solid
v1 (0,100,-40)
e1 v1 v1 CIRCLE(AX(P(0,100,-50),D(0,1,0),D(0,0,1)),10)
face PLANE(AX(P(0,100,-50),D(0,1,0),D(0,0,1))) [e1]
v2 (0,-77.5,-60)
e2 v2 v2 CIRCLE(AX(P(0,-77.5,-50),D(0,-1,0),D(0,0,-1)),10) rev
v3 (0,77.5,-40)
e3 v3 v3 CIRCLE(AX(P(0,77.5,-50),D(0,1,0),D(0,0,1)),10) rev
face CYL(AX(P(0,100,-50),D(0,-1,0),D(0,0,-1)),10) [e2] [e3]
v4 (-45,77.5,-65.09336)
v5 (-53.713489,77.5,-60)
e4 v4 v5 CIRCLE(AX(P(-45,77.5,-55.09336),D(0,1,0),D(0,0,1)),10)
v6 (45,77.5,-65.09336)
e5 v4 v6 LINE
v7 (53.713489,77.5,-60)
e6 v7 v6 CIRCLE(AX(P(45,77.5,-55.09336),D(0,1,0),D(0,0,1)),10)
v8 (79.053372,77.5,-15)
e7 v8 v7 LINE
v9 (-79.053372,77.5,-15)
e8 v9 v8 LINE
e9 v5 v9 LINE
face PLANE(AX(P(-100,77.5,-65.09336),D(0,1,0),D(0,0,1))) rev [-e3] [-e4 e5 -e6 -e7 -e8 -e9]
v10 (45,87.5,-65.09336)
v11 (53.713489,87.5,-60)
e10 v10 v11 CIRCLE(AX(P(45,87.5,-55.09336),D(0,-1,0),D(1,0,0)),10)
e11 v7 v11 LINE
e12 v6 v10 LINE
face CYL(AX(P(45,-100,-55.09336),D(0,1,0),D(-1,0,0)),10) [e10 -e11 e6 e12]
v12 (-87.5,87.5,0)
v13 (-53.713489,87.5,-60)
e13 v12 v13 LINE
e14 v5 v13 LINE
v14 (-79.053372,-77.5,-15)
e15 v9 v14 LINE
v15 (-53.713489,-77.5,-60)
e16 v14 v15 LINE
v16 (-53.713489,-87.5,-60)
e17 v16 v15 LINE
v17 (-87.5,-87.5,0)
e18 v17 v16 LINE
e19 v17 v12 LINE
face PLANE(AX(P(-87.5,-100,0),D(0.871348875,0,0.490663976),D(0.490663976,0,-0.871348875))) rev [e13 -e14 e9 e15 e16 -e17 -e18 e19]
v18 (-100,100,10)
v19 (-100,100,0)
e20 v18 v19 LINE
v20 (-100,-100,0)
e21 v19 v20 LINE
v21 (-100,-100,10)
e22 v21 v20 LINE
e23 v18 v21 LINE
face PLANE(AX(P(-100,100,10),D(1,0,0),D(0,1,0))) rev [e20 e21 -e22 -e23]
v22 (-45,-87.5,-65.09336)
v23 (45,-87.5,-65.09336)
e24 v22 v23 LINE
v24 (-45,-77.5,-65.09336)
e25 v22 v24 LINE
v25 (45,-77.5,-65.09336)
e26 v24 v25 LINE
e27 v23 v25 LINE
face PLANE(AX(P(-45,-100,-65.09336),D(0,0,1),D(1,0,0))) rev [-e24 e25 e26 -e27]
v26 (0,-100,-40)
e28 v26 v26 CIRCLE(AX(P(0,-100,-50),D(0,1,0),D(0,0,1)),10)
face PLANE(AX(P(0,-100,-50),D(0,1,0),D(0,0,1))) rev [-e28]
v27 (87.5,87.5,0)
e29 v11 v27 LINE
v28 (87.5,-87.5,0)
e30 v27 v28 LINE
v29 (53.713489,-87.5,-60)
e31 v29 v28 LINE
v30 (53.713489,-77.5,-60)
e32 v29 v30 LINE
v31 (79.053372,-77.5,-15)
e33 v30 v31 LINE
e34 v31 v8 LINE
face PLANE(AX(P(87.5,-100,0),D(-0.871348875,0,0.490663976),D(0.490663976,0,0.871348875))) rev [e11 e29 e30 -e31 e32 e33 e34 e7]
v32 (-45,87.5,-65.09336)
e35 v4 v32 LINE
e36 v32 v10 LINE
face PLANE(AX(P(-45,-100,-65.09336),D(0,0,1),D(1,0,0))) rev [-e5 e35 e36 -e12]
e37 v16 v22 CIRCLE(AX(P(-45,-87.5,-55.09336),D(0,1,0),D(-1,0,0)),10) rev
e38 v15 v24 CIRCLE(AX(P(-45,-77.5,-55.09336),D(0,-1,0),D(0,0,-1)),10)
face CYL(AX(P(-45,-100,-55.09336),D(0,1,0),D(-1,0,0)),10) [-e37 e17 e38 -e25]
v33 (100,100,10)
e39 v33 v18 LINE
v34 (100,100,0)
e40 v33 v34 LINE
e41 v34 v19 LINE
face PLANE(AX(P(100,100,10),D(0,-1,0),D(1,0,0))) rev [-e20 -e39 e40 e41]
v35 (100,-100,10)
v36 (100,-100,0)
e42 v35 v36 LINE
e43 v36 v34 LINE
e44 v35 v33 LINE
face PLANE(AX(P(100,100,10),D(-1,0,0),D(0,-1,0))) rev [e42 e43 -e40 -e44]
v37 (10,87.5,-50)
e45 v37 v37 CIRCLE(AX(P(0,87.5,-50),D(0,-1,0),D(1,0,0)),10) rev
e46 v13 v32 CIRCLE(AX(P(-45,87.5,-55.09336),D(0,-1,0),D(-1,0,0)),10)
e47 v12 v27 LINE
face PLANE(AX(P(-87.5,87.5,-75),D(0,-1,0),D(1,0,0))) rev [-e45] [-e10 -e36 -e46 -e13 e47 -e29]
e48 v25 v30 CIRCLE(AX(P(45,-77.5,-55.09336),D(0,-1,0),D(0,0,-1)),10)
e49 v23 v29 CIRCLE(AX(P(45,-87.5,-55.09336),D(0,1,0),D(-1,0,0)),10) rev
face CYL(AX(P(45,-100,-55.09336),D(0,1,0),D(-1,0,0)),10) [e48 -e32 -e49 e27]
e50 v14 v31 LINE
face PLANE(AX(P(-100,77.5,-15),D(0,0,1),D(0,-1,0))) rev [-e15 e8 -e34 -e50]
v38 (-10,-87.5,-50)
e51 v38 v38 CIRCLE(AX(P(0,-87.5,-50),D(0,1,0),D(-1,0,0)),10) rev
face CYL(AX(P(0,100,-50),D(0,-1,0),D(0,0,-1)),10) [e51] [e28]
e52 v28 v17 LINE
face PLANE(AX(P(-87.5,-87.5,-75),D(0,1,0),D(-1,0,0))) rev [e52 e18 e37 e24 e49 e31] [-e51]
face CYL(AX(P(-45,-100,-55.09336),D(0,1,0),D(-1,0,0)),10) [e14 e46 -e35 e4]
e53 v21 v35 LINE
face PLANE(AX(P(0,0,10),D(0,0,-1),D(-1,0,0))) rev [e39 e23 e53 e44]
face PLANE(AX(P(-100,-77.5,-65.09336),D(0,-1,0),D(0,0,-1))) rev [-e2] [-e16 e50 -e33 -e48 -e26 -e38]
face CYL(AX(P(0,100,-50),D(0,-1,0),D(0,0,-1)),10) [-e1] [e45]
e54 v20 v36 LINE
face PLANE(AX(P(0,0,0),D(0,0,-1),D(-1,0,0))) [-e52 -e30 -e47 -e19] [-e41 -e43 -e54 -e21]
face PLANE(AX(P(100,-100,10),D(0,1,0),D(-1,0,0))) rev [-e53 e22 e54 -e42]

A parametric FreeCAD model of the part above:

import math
import FreeCAD as App
import Part
import Sketcher

V = App.Vector
Q = App.Units.Quantity

doc = App.newDocument("Part")
body = doc.addObject("PartDesign::Body", "Body")

# Sketch on XY plane
sketch1 = doc.addObject("Sketcher::SketchObject", "Sketch")
body.addObject(sketch1)
sketch1.AttachmentSupport = (doc.XY_Plane, [""])
sketch1.MapMode = "FlatFace"
sketch1.addGeometry(Part.LineSegment(V(-100, 100, 0), V(-100, -100, 0)), False)
sketch1.addGeometry(Part.LineSegment(V(-100, -100, 0), V(100, -100, 0)), False)
sketch1.addGeometry(Part.LineSegment(V(100, -100, 0), V(100, 100, 0)), False)
sketch1.addGeometry(Part.LineSegment(V(100, 100, 0), V(-100, 100, 0)), False)
sketch1.addConstraint(Sketcher.Constraint("Coincident", 0, 2, 1, 1))
sketch1.addConstraint(Sketcher.Constraint("Coincident", 1, 2, 2, 1))
sketch1.addConstraint(Sketcher.Constraint("Coincident", 2, 2, 3, 1))
sketch1.addConstraint(Sketcher.Constraint("Coincident", 3, 2, 0, 1))
sketch1.addConstraint(Sketcher.Constraint("Vertical", 0))
sketch1.addConstraint(Sketcher.Constraint("Horizontal", 1))
sketch1.addConstraint(Sketcher.Constraint("Vertical", 2))
sketch1.addConstraint(Sketcher.Constraint("Horizontal", 3))
sketch1.addConstraint(Sketcher.Constraint("Symmetric", 0, 2, 2, 2, -1, 1))
sketch1.addConstraint(Sketcher.Constraint("Equal", 3, 0))
sketch1.addConstraint(Sketcher.Constraint("DistanceX", 1, 1, 1, 2, Q("200 mm")))
pad1 = doc.addObject("PartDesign::Pad", "Pad")
body.addObject(pad1)
pad1.Profile = sketch1
pad1.Length = 10

# Sketch on XY plane
sketch2 = doc.addObject("Sketcher::SketchObject", "Sketch001")
body.addObject(sketch2)
sketch2.AttachmentSupport = (doc.XY_Plane, [""])
sketch2.MapMode = "FlatFace"
sketch2.addGeometry(Part.LineSegment(V(88, 88, 0), V(88, -88, 0)), False)
sketch2.addGeometry(Part.LineSegment(V(88, -88, 0), V(-88, -88, 0)), False)
sketch2.addGeometry(Part.LineSegment(V(-88, -88, 0), V(-88, 88, 0)), False)
sketch2.addGeometry(Part.LineSegment(V(-88, 88, 0), V(88, 88, 0)), False)
sketch2.addConstraint(Sketcher.Constraint("Coincident", 0, 2, 1, 1))
sketch2.addConstraint(Sketcher.Constraint("Coincident", 1, 2, 2, 1))
sketch2.addConstraint(Sketcher.Constraint("Coincident", 2, 2, 3, 1))
sketch2.addConstraint(Sketcher.Constraint("Coincident", 3, 2, 0, 1))
sketch2.addConstraint(Sketcher.Constraint("Vertical", 0))
sketch2.addConstraint(Sketcher.Constraint("Horizontal", 1))
sketch2.addConstraint(Sketcher.Constraint("Vertical", 2))
sketch2.addConstraint(Sketcher.Constraint("Horizontal", 3))
sketch2.addConstraint(Sketcher.Constraint("Symmetric", 0, 2, 2, 2, -1, 1))
sketch2.addConstraint(Sketcher.Constraint("Equal", 3, 0))
sketch2.addConstraint(Sketcher.Constraint("DistanceX", 1, 2, 1, 1, Q("175 mm")))
pad2 = doc.addObject("PartDesign::Pad", "Pad001")
body.addObject(pad2)
pad2.Profile = sketch2
pad2.Length = 75
pad2.Reversed = True

# Sketch on XZ plane
sketch3 = doc.addObject("Sketcher::SketchObject", "Sketch002")
body.addObject(sketch3)
sketch3.AttachmentSupport = (doc.XZ_Plane, [""])
sketch3.MapMode = "FlatFace"
sketch3.AttachmentOffset = App.Placement(V(0, 0, -87.5), App.Rotation())
sketch3.addGeometry(Part.LineSegment(V(-88, 0, 0), V(-54, -60, 0)), False)
sketch3.addGeometry(Part.ArcOfCircle(Part.Circle(V(-45, -55, 0), V(0, 0, 1), 10), math.radians(-151), math.radians(-90)), False)
sketch3.addGeometry(Part.LineSegment(V(-45, -65, 0), V(45, -65, 0)), False)
sketch3.addGeometry(Part.ArcOfCircle(Part.Circle(V(45, -55, 0), V(0, 0, 1), 10), math.radians(-90), math.radians(-29)), False)
sketch3.addGeometry(Part.LineSegment(V(54, -60, 0), V(88, 0, 0)), False)
sketch3.addGeometry(Part.LineSegment(V(88, 0, 0), V(88, -75, 0)), False)
sketch3.addGeometry(Part.LineSegment(V(88, -75, 0), V(-88, -75, 0)), False)
sketch3.addGeometry(Part.LineSegment(V(-88, -75, 0), V(-88, 0, 0)), False)
sketch3.addConstraint(Sketcher.Constraint("Tangent", 0, 2, 1, 1))
sketch3.addConstraint(Sketcher.Constraint("Tangent", 1, 2, 2, 1))
sketch3.addConstraint(Sketcher.Constraint("Tangent", 2, 2, 3, 1))
sketch3.addConstraint(Sketcher.Constraint("Tangent", 3, 2, 4, 1))
sketch3.addConstraint(Sketcher.Constraint("Coincident", 4, 2, 5, 1))
sketch3.addConstraint(Sketcher.Constraint("Coincident", 5, 2, 6, 1))
sketch3.addConstraint(Sketcher.Constraint("Coincident", 6, 2, 7, 1))
sketch3.addConstraint(Sketcher.Constraint("Coincident", 7, 2, 0, 1))
sketch3.addConstraint(Sketcher.Constraint("Horizontal", 2))
sketch3.addConstraint(Sketcher.Constraint("Vertical", 5))
sketch3.addConstraint(Sketcher.Constraint("Horizontal", 6))
sketch3.addConstraint(Sketcher.Constraint("Vertical", 7))
sketch3.addConstraint(Sketcher.Constraint("Equal", 1, 3))
sketch3.addConstraint(Sketcher.Constraint("Symmetric", 4, 2, 7, 2, -1, 1))
sketch3.addConstraint(Sketcher.Constraint("Symmetric", 0, 2, 3, 2, -2))
sketch3.addConstraint(Sketcher.Constraint("Radius", 1, Q("10 mm")))
sketch3.addConstraint(Sketcher.Constraint("DistanceX", 2, 1, 2, 2, Q("90 mm")))
sketch3.addConstraint(Sketcher.Constraint("DistanceX", 6, 2, 6, 1, Q("175 mm")))
sketch3.addConstraint(Sketcher.Constraint("DistanceY", 5, 2, 5, 1, Q("75 mm")))
sketch3.addConstraint(Sketcher.Constraint("DistanceY", 0, 2, -1, 1, Q("60 mm")))
pocket1 = doc.addObject("PartDesign::Pocket", "Pocket")
body.addObject(pocket1)
pocket1.Profile = sketch3
pocket1.Type = "ThroughAll"
pocket1.Reversed = True

# Sketch on YZ plane
sketch4 = doc.addObject("Sketcher::SketchObject", "Sketch003")
body.addObject(sketch4)
sketch4.AttachmentSupport = (doc.YZ_Plane, [""])
sketch4.MapMode = "FlatFace"
sketch4.addGeometry(Part.LineSegment(V(78, -15, 0), V(-78, -15, 0)), False)
sketch4.addGeometry(Part.LineSegment(V(-78, -15, 0), V(-78, -65, 0)), False)
sketch4.addGeometry(Part.LineSegment(V(-78, -65, 0), V(78, -65, 0)), False)
sketch4.addGeometry(Part.LineSegment(V(78, -65, 0), V(78, -15, 0)), False)
sketch4.addConstraint(Sketcher.Constraint("Coincident", 0, 2, 1, 1))
sketch4.addConstraint(Sketcher.Constraint("Coincident", 1, 2, 2, 1))
sketch4.addConstraint(Sketcher.Constraint("Coincident", 2, 2, 3, 1))
sketch4.addConstraint(Sketcher.Constraint("Coincident", 3, 2, 0, 1))
sketch4.addConstraint(Sketcher.Constraint("Horizontal", 0))
sketch4.addConstraint(Sketcher.Constraint("Vertical", 1))
sketch4.addConstraint(Sketcher.Constraint("Horizontal", 2))
sketch4.addConstraint(Sketcher.Constraint("Vertical", 3))
sketch4.addConstraint(Sketcher.Constraint("DistanceX", 0, 2, 0, 1, Q("155 mm")))
sketch4.addConstraint(Sketcher.Constraint("DistanceY", 0, 2, -1, 1, Q("15 mm")))
sketch4.addConstraint(Sketcher.Constraint("DistanceX", 0, 2, -1, 1, Q("77.5 mm")))
sketch4.addConstraint(Sketcher.Constraint("DistanceY", 1, 2, 1, 1, Q("50.09336 mm")))
pocket2 = doc.addObject("PartDesign::Pocket", "Pocket001")
body.addObject(pocket2)
pocket2.Profile = sketch4
pocket2.Length = 200
pocket2.Midplane = True

# Sketch on XZ plane
sketch5 = doc.addObject("Sketcher::SketchObject", "Sketch004")
body.addObject(sketch5)
sketch5.AttachmentSupport = (doc.XZ_Plane, [""])
sketch5.MapMode = "FlatFace"
sketch5.addGeometry(Part.Circle(V(0, -50, 0), V(0, 0, 1), 10), False)
sketch5.addConstraint(Sketcher.Constraint("PointOnObject", 0, 3, -2))
sketch5.addConstraint(Sketcher.Constraint("Diameter", 0, Q("20 mm")))
sketch5.addConstraint(Sketcher.Constraint("DistanceY", 0, 3, -1, 1, Q("50 mm")))
pad3 = doc.addObject("PartDesign::Pad", "Pad002")
body.addObject(pad3)
pad3.Profile = sketch5
pad3.Length = 200
pad3.Midplane = True

doc.recompute()
